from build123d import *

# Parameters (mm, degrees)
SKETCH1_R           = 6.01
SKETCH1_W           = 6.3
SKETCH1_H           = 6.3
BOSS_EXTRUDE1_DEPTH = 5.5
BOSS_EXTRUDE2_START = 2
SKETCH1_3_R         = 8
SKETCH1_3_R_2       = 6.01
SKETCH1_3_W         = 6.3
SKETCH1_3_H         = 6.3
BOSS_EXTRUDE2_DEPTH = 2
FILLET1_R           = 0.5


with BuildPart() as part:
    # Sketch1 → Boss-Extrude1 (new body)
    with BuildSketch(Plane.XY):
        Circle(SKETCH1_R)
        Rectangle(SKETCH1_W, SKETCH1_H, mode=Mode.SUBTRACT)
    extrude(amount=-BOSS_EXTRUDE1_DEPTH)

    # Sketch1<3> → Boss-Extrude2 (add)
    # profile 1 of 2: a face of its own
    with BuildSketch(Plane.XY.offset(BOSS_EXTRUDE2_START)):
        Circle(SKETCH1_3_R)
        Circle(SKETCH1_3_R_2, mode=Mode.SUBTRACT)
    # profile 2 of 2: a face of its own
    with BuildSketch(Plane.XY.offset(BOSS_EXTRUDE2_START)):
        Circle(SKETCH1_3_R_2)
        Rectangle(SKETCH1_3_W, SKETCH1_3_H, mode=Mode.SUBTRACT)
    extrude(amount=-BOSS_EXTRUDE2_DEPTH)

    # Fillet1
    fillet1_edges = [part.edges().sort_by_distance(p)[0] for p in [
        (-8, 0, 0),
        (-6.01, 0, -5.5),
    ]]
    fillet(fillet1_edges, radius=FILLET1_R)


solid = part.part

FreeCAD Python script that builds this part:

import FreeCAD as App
import Part
import Sketcher

V = App.Vector
Q = App.Units.Quantity


def edges_at(feature, points):
    """Names of the edges that pass closest to the given points."""
    edges = feature.Shape.Edges
    near = lambda p: min(range(len(edges)), key=lambda i: edges[i].distToShape(Part.Vertex(*p))[0])
    return sorted({f"Edge{near(p) + 1}" for p in points})


def add_polygon(sketch, points):
    """Adds a closed chain of lines whose ends are joined by coincident constraints."""
    first, n = sketch.GeometryCount, len(points)
    for a, b in zip(points, points[1:] + points[:1]):
        sketch.addGeometry(Part.LineSegment(App.Vector(*a, 0), App.Vector(*b, 0)), False)
    for i in range(n):
        sketch.addConstraint(Sketcher.Constraint("Coincident", first + i, 2, first + (i + 1) % n, 1))

doc = App.newDocument("Part")
body = doc.addObject("PartDesign::Body", "Body")

sketch1 = doc.addObject("Sketcher::SketchObject", "Sketch")
body.addObject(sketch1)
sketch1.AttachmentSupport = (doc.XY_Plane, [""])
sketch1.MapMode = "FlatFace"
sketch1.addGeometry(Part.Circle(V(0, 0, 0), V(0, 0, 1), 6), False)
add_polygon(sketch1, [(3, -3), (-3, -3), (-3, 3), (3, 3)])
sketch1.addConstraint([
    Sketcher.Constraint("Horizontal", 1),
    Sketcher.Constraint("Vertical", 2),
    Sketcher.Constraint("Horizontal", 3),
    Sketcher.Constraint("Vertical", 4),
    Sketcher.Constraint("Coincident", 0, 3, -1, 1),
    Sketcher.Constraint("Symmetric", 1, 2, 3, 2, -1, 1),
    Sketcher.Constraint("Equal", 3, 2),
    Sketcher.Constraint("Diameter", 0, Q("12.02 mm")),
    Sketcher.Constraint("DistanceX", 1, 2, 1, 1, Q("6.3 mm")),
])
pad1 = doc.addObject("PartDesign::Pad", "Pad")
body.addObject(pad1)
pad1.Profile = sketch1
pad1.Length = 5.5
pad1.Reversed = True

sketch2 = doc.addObject("Sketcher::SketchObject", "Sketch001")
body.addObject(sketch2)
sketch2.AttachmentSupport = (doc.XY_Plane, [""])
sketch2.MapMode = "FlatFace"
sketch2.AttachmentOffset = App.Placement(V(0, 0, 2), App.Rotation())
sketch2.addGeometry(Part.Circle(V(0, 0, 0), V(0, 0, 1), 8), False)
add_polygon(sketch2, [(-3, -3), (-3, 3), (3, 3), (3, -3)])
sketch2.addConstraint([
    Sketcher.Constraint("Vertical", 1),
    Sketcher.Constraint("Horizontal", 2),
    Sketcher.Constraint("Vertical", 3),
    Sketcher.Constraint("Horizontal", 4),
    Sketcher.Constraint("Coincident", 0, 3, -1, 1),
    Sketcher.Constraint("Symmetric", 1, 2, 3, 2, -1, 1),
    Sketcher.Constraint("Equal", 4, 1),
    Sketcher.Constraint("Diameter", 0, Q("16 mm")),
    Sketcher.Constraint("DistanceX", 2, 1, 2, 2, Q("6.3 mm")),
])
pad2 = doc.addObject("PartDesign::Pad", "Pad001")
body.addObject(pad2)
pad2.Profile = sketch2
pad2.Length = 2
pad2.Reversed = True
doc.recompute()

fillet = doc.addObject("PartDesign::Fillet", "Fillet")
body.addObject(fillet)
fillet.Base = (pad2, edges_at(pad2, [(-8, 0, 0), (-6.01, 0, -5.5)]))
fillet.Radius = 0.5

doc.recompute()
